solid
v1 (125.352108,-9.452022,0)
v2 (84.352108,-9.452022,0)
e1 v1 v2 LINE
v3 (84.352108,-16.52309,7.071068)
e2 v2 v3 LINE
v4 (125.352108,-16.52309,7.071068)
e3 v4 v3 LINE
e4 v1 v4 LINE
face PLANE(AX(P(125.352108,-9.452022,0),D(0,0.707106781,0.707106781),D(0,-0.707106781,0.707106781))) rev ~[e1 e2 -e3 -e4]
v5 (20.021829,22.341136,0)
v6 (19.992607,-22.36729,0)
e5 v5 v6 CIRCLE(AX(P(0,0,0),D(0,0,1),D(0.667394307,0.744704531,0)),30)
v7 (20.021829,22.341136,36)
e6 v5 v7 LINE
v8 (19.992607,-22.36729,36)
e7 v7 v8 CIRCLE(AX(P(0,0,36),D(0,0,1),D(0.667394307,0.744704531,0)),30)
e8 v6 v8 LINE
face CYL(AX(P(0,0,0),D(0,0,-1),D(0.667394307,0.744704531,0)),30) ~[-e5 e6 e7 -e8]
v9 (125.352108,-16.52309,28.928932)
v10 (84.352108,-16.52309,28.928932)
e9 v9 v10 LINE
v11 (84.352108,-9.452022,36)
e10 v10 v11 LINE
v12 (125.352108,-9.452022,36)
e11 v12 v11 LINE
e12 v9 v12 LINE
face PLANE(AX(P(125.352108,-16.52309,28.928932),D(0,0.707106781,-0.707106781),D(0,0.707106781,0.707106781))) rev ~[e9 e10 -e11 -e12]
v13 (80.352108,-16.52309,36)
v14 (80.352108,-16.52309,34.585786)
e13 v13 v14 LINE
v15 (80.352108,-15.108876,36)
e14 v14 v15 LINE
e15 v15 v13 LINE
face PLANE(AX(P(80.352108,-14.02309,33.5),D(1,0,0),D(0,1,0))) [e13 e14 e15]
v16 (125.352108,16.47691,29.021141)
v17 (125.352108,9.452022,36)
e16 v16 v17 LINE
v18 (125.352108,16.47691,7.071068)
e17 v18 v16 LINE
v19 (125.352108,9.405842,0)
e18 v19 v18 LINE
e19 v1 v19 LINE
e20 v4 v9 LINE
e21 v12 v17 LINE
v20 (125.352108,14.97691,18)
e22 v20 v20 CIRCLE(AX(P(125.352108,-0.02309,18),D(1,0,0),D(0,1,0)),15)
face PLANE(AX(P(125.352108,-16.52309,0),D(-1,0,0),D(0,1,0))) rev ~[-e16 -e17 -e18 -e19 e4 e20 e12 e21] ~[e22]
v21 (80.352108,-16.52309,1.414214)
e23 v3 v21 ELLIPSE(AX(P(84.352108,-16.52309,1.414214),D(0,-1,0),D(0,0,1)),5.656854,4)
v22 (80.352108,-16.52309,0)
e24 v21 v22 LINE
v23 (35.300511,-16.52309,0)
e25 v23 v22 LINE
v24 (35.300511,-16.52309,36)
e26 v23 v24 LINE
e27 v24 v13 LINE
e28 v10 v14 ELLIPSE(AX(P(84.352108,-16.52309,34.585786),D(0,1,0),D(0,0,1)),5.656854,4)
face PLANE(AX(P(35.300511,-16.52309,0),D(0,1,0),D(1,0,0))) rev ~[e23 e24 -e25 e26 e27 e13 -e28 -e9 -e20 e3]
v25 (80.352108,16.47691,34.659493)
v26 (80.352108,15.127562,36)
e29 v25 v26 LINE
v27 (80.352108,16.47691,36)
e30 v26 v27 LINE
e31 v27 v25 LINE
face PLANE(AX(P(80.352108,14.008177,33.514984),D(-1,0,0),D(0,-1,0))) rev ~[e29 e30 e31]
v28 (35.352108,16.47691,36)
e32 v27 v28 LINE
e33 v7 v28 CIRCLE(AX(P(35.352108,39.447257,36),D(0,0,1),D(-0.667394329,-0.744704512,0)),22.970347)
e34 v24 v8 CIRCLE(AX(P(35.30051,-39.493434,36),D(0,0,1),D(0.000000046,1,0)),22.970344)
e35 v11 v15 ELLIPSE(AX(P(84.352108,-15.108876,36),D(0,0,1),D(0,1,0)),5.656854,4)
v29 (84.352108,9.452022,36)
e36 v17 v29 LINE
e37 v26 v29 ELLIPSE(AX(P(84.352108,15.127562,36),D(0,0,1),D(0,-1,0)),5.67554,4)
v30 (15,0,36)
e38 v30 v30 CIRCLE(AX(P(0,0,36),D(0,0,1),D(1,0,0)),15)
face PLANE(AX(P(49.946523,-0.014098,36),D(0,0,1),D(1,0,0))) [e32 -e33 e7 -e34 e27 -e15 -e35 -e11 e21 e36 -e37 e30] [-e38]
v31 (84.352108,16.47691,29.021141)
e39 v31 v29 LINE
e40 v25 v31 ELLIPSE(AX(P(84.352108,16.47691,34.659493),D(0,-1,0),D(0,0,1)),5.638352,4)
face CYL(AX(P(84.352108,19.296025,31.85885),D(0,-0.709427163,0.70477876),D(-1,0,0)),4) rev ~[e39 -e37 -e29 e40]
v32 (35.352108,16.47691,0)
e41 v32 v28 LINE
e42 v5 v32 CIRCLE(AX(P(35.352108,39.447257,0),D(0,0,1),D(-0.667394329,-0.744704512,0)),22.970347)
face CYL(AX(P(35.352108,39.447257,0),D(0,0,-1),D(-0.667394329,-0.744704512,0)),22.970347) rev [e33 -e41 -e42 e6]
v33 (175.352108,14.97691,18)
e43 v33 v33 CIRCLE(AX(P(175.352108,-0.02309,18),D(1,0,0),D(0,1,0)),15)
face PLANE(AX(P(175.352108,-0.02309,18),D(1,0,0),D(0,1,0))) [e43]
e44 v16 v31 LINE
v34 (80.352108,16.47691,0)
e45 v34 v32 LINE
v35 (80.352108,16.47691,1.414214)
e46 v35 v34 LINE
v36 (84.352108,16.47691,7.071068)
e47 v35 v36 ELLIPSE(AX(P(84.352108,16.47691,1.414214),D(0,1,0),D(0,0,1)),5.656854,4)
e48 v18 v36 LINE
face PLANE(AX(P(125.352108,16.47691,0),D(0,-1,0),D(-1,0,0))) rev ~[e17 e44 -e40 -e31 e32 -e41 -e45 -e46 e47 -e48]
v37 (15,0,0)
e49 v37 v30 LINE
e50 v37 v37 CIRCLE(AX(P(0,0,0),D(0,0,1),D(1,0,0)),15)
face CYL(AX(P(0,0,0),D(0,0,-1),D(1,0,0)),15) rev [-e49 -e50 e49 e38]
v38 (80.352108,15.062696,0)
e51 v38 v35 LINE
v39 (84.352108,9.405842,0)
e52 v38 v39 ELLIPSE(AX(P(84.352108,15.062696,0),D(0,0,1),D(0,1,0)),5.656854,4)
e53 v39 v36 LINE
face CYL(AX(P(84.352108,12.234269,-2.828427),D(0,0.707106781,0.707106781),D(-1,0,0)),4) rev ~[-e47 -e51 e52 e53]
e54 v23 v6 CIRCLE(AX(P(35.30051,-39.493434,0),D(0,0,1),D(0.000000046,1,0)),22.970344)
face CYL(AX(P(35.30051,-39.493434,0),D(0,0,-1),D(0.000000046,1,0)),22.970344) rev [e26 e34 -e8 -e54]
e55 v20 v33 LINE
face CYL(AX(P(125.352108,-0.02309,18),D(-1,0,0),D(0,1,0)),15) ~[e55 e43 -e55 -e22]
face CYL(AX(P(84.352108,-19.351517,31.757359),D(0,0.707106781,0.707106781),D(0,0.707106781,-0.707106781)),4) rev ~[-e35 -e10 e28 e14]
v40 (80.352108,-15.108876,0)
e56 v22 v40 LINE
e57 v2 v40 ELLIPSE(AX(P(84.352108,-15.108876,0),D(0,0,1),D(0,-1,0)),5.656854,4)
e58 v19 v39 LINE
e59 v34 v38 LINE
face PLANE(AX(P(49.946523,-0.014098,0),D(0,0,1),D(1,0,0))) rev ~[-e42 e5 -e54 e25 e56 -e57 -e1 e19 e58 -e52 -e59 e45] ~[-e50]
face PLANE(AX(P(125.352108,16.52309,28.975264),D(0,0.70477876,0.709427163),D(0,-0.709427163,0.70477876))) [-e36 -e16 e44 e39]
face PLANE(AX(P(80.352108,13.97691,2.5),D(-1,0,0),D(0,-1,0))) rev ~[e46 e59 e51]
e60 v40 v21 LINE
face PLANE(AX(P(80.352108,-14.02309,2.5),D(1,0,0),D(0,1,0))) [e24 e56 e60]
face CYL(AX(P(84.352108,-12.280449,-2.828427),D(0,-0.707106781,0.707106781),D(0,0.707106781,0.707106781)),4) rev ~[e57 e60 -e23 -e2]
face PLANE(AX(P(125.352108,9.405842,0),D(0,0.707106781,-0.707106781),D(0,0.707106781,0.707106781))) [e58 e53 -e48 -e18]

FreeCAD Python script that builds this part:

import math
import FreeCAD as App
import Part
import Sketcher
from FreeCAD import Vector
Q = App.Units.Quantity


def edges_at(feature, points):
    """Names of the edges that pass closest to the given points."""
    edges = feature.Shape.Edges
    near = lambda p: min(range(len(edges)), key=lambda i: edges[i].distToShape(Part.Vertex(*p))[0])
    return sorted({f"Edge{near(p) + 1}" for p in points})

doc = App.newDocument("Part")
body = doc.addObject("PartDesign::Body", "Body")

# Sketch on XY plane
sketch1 = body.newObject("Sketcher::SketchObject", "Sketch")
sketch1.AttachmentSupport = (doc.getObject("XY_Plane"), [""])
sketch1.MapMode = "FlatFace"
sketch1.addGeometry(Part.ArcOfCircle(Part.Circle(Vector(0, 0, 0), Vector(0, 0, 1), 30), math.radians(48), math.radians(312)), False)
sketch1.addGeometry(Part.ArcOfCircle(Part.Circle(Vector(35, -39, 0), Vector(0, 0, 1), 23), math.radians(90), math.radians(132)), False)
sketch1.addGeometry(Part.LineSegment(Vector(35, -17, 0), Vector(125, -17, 0)), False)
sketch1.addGeometry(Part.LineSegment(Vector(125, -17, 0), Vector(125, 16, 0)), False)
sketch1.addGeometry(Part.LineSegment(Vector(125, 16, 0), Vector(35, 16, 0)), False)
sketch1.addGeometry(Part.ArcOfCircle(Part.Circle(Vector(35, 39, 0), Vector(0, 0, 1), 23), math.radians(-132), math.radians(-90)), False)
sketch1.addGeometry(Part.Circle(Vector(0, 0, 0), Vector(0, 0, 1), 15), False)
sketch1.addConstraint(Sketcher.Constraint("Tangent", 0, 2, 1, 2))
sketch1.addConstraint(Sketcher.Constraint("Tangent", 1, 1, 2, 1))
sketch1.addConstraint(Sketcher.Constraint("Coincident", 2, 2, 3, 1))
sketch1.addConstraint(Sketcher.Constraint("Coincident", 3, 2, 4, 1))
sketch1.addConstraint(Sketcher.Constraint("Tangent", 4, 2, 5, 2))
sketch1.addConstraint(Sketcher.Constraint("Tangent", 5, 1, 0, 1))
sketch1.addConstraint(Sketcher.Constraint("Horizontal", 2))
sketch1.addConstraint(Sketcher.Constraint("Vertical", 3))
sketch1.addConstraint(Sketcher.Constraint("Horizontal", 4))
sketch1.addConstraint(Sketcher.Constraint("Coincident", 0, 3, -1, 1))
sketch1.addConstraint(Sketcher.Constraint("Coincident", 6, 3, -1, 1))
sketch1.addConstraint(Sketcher.Constraint("Diameter", 6, Q("30 mm")))
sketch1.addConstraint(Sketcher.Constraint("Radius", 0, Q("30 mm")))
sketch1.addConstraint(Sketcher.Constraint("DistanceX", 4, 2, 4, 1, Q("90 mm")))
sketch1.addConstraint(Sketcher.Constraint("DistanceY", 3, 1, 3, 2, Q("33 mm")))
sketch1.addConstraint(Sketcher.Constraint("Radius", 1, Q("22.970344 mm")))
sketch1.addConstraint(Sketcher.Constraint("Radius", 5, Q("22.970347 mm")))
sketch1.addConstraint(Sketcher.Constraint("DistanceX", 1, 3, 5, 3, Q("0.051598 mm")))
pad1 = body.newObject("PartDesign::Pad", "Pad")
pad1.Profile = sketch1
pad1.Length = 36

# Sketch on YZ plane
sketch2 = body.newObject("Sketcher::SketchObject", "Sketch001")
sketch2.AttachmentSupport = (doc.getObject("YZ_Plane"), [""])
sketch2.MapMode = "FlatFace"
sketch2.AttachmentOffset = App.Placement(Vector(0, 0, 125.352108), App.Rotation())
sketch2.addGeometry(Part.Circle(Vector(0, 18, 0), Vector(0, 0, 1), 15), False)
sketch2.addConstraint(Sketcher.Constraint("Diameter", 0, Q("30 mm")))
sketch2.addConstraint(Sketcher.Constraint("DistanceY", -1, 1, 0, 3, Q("18 mm")))
sketch2.addConstraint(Sketcher.Constraint("DistanceX", 0, 3, -1, 1, Q("0.02309 mm")))
pad2 = body.newObject("PartDesign::Pad", "Pad001")
pad2.Profile = sketch2
pad2.Length = 50

# Sketch on YZ plane
sketch3 = body.newObject("Sketcher::SketchObject", "Sketch002")
sketch3.AttachmentSupport = (doc.getObject("YZ_Plane"), [""])
sketch3.MapMode = "FlatFace"
sketch3.AttachmentOffset = App.Placement(Vector(0, 0, 125.352108), App.Rotation())
sketch3.addGeometry(Part.LineSegment(Vector(-17, 36, 0), Vector(-17, 29, 0)), False)
sketch3.addGeometry(Part.LineSegment(Vector(-17, 29, 0), Vector(-9, 36, 0)), False)
sketch3.addGeometry(Part.LineSegment(Vector(-9, 36, 0), Vector(-17, 36, 0)), False)
sketch3.addGeometry(Part.LineSegment(Vector(-17, 7, 0), Vector(-17, 0, 0)), False)
sketch3.addGeometry(Part.LineSegment(Vector(-17, 0, 0), Vector(-9, 0, 0)), False)
sketch3.addGeometry(Part.LineSegment(Vector(-9, 0, 0), Vector(-17, 7, 0)), False)
sketch3.addGeometry(Part.LineSegment(Vector(9, 36, 0), Vector(17, 29, 0)), False)
sketch3.addGeometry(Part.LineSegment(Vector(17, 29, 0), Vector(16, 36, 0)), False)
sketch3.addGeometry(Part.LineSegment(Vector(16, 36, 0), Vector(9, 36, 0)), False)
sketch3.addGeometry(Part.LineSegment(Vector(16, 7, 0), Vector(9, 0, 0)), False)
sketch3.addGeometry(Part.LineSegment(Vector(9, 0, 0), Vector(16, 0, 0)), False)
sketch3.addGeometry(Part.LineSegment(Vector(16, 0, 0), Vector(16, 7, 0)), False)
sketch3.addConstraint(Sketcher.Constraint("Coincident", 0, 2, 1, 1))
sketch3.addConstraint(Sketcher.Constraint("Coincident", 1, 2, 2, 1))
sketch3.addConstraint(Sketcher.Constraint("Coincident", 2, 2, 0, 1))
sketch3.addConstraint(Sketcher.Constraint("Coincident", 3, 2, 4, 1))
sketch3.addConstraint(Sketcher.Constraint("Coincident", 4, 2, 5, 1))
sketch3.addConstraint(Sketcher.Constraint("Coincident", 5, 2, 3, 1))
sketch3.addConstraint(Sketcher.Constraint("Coincident", 6, 2, 7, 1))
sketch3.addConstraint(Sketcher.Constraint("Coincident", 7, 2, 8, 1))
sketch3.addConstraint(Sketcher.Constraint("Coincident", 8, 2, 6, 1))
sketch3.addConstraint(Sketcher.Constraint("Coincident", 9, 2, 10, 1))
sketch3.addConstraint(Sketcher.Constraint("Coincident", 10, 2, 11, 1))
sketch3.addConstraint(Sketcher.Constraint("Coincident", 11, 2, 9, 1))
sketch3.addConstraint(Sketcher.Constraint("Vertical", 0))
sketch3.addConstraint(Sketcher.Constraint("Horizontal", 2))
sketch3.addConstraint(Sketcher.Constraint("Vertical", 3))
sketch3.addConstraint(Sketcher.Constraint("Horizontal", 4))
sketch3.addConstraint(Sketcher.Constraint("Horizontal", 8))
sketch3.addConstraint(Sketcher.Constraint("Horizontal", 10))
sketch3.addConstraint(Sketcher.Constraint("Vertical", 11))
sketch3.addConstraint(Sketcher.Constraint("Symmetric", 1, 2, 8, 2, -2))
sketch3.addConstraint(Sketcher.Constraint("PointOnObject", 3, 2, -1))
sketch3.addConstraint(Sketcher.Constraint("PointOnObject", 9, 2, -1))
sketch3.addConstraint(Sketcher.Constraint("Perpendicular", 1, 5))
sketch3.addConstraint(Sketcher.Constraint("Perpendicular", 5, 9))
sketch3.addConstraint(Sketcher.Constraint("Horizontal", 5, 2, 11, 2))
sketch3.addConstraint(Sketcher.Constraint("Vertical", 2, 2, 3, 2))
sketch3.addConstraint(Sketcher.Constraint("Vertical", 1, 2, 4, 2))
sketch3.addConstraint(Sketcher.Constraint("Vertical", 7, 2, 10, 2))
sketch3.addConstraint(Sketcher.Constraint("Equal", 4, 10))
sketch3.addConstraint(Sketcher.Constraint("Distance", 1, Q("10 mm")))
sketch3.addConstraint(Sketcher.Constraint("DistanceY", -1, 1, 1, 2, Q("36 mm")))
sketch3.addConstraint(Sketcher.Constraint("DistanceX", 2, 2, 7, 2, Q("33 mm")))
sketch3.addConstraint(Sketcher.Constraint("DistanceX", 8, 2, 8, 1, Q("7.024888 mm")))
sketch3.addConstraint(Sketcher.Constraint("DistanceX", -1, 1, 6, 2, Q("16.52309 mm")))
sketch3.addConstraint(Sketcher.Constraint("DistanceY", 0, 2, 6, 2, Q("0.046332 mm")))
pocket1 = body.newObject("PartDesign::Pocket", "Pocket")
pocket1.Profile = sketch3
pocket1.Length = 45
doc.recompute()

fillet = body.newObject("PartDesign::Fillet", "Fillet")
fillet.Base = (pocket1, edges_at(pocket1, [(80.352, 12.964, 32.511), (80.352, 12.941, 3.536)]))
fillet.Radius = 4
doc.recompute()

fillet2 = body.newObject("PartDesign::Fillet", "Fillet001")
fillet2.Base = (fillet, edges_at(fillet, [(80.352, -12.988, 3.536), (80.352, -12.988, 32.464)]))
fillet2.Radius = 4

doc.recompute()
